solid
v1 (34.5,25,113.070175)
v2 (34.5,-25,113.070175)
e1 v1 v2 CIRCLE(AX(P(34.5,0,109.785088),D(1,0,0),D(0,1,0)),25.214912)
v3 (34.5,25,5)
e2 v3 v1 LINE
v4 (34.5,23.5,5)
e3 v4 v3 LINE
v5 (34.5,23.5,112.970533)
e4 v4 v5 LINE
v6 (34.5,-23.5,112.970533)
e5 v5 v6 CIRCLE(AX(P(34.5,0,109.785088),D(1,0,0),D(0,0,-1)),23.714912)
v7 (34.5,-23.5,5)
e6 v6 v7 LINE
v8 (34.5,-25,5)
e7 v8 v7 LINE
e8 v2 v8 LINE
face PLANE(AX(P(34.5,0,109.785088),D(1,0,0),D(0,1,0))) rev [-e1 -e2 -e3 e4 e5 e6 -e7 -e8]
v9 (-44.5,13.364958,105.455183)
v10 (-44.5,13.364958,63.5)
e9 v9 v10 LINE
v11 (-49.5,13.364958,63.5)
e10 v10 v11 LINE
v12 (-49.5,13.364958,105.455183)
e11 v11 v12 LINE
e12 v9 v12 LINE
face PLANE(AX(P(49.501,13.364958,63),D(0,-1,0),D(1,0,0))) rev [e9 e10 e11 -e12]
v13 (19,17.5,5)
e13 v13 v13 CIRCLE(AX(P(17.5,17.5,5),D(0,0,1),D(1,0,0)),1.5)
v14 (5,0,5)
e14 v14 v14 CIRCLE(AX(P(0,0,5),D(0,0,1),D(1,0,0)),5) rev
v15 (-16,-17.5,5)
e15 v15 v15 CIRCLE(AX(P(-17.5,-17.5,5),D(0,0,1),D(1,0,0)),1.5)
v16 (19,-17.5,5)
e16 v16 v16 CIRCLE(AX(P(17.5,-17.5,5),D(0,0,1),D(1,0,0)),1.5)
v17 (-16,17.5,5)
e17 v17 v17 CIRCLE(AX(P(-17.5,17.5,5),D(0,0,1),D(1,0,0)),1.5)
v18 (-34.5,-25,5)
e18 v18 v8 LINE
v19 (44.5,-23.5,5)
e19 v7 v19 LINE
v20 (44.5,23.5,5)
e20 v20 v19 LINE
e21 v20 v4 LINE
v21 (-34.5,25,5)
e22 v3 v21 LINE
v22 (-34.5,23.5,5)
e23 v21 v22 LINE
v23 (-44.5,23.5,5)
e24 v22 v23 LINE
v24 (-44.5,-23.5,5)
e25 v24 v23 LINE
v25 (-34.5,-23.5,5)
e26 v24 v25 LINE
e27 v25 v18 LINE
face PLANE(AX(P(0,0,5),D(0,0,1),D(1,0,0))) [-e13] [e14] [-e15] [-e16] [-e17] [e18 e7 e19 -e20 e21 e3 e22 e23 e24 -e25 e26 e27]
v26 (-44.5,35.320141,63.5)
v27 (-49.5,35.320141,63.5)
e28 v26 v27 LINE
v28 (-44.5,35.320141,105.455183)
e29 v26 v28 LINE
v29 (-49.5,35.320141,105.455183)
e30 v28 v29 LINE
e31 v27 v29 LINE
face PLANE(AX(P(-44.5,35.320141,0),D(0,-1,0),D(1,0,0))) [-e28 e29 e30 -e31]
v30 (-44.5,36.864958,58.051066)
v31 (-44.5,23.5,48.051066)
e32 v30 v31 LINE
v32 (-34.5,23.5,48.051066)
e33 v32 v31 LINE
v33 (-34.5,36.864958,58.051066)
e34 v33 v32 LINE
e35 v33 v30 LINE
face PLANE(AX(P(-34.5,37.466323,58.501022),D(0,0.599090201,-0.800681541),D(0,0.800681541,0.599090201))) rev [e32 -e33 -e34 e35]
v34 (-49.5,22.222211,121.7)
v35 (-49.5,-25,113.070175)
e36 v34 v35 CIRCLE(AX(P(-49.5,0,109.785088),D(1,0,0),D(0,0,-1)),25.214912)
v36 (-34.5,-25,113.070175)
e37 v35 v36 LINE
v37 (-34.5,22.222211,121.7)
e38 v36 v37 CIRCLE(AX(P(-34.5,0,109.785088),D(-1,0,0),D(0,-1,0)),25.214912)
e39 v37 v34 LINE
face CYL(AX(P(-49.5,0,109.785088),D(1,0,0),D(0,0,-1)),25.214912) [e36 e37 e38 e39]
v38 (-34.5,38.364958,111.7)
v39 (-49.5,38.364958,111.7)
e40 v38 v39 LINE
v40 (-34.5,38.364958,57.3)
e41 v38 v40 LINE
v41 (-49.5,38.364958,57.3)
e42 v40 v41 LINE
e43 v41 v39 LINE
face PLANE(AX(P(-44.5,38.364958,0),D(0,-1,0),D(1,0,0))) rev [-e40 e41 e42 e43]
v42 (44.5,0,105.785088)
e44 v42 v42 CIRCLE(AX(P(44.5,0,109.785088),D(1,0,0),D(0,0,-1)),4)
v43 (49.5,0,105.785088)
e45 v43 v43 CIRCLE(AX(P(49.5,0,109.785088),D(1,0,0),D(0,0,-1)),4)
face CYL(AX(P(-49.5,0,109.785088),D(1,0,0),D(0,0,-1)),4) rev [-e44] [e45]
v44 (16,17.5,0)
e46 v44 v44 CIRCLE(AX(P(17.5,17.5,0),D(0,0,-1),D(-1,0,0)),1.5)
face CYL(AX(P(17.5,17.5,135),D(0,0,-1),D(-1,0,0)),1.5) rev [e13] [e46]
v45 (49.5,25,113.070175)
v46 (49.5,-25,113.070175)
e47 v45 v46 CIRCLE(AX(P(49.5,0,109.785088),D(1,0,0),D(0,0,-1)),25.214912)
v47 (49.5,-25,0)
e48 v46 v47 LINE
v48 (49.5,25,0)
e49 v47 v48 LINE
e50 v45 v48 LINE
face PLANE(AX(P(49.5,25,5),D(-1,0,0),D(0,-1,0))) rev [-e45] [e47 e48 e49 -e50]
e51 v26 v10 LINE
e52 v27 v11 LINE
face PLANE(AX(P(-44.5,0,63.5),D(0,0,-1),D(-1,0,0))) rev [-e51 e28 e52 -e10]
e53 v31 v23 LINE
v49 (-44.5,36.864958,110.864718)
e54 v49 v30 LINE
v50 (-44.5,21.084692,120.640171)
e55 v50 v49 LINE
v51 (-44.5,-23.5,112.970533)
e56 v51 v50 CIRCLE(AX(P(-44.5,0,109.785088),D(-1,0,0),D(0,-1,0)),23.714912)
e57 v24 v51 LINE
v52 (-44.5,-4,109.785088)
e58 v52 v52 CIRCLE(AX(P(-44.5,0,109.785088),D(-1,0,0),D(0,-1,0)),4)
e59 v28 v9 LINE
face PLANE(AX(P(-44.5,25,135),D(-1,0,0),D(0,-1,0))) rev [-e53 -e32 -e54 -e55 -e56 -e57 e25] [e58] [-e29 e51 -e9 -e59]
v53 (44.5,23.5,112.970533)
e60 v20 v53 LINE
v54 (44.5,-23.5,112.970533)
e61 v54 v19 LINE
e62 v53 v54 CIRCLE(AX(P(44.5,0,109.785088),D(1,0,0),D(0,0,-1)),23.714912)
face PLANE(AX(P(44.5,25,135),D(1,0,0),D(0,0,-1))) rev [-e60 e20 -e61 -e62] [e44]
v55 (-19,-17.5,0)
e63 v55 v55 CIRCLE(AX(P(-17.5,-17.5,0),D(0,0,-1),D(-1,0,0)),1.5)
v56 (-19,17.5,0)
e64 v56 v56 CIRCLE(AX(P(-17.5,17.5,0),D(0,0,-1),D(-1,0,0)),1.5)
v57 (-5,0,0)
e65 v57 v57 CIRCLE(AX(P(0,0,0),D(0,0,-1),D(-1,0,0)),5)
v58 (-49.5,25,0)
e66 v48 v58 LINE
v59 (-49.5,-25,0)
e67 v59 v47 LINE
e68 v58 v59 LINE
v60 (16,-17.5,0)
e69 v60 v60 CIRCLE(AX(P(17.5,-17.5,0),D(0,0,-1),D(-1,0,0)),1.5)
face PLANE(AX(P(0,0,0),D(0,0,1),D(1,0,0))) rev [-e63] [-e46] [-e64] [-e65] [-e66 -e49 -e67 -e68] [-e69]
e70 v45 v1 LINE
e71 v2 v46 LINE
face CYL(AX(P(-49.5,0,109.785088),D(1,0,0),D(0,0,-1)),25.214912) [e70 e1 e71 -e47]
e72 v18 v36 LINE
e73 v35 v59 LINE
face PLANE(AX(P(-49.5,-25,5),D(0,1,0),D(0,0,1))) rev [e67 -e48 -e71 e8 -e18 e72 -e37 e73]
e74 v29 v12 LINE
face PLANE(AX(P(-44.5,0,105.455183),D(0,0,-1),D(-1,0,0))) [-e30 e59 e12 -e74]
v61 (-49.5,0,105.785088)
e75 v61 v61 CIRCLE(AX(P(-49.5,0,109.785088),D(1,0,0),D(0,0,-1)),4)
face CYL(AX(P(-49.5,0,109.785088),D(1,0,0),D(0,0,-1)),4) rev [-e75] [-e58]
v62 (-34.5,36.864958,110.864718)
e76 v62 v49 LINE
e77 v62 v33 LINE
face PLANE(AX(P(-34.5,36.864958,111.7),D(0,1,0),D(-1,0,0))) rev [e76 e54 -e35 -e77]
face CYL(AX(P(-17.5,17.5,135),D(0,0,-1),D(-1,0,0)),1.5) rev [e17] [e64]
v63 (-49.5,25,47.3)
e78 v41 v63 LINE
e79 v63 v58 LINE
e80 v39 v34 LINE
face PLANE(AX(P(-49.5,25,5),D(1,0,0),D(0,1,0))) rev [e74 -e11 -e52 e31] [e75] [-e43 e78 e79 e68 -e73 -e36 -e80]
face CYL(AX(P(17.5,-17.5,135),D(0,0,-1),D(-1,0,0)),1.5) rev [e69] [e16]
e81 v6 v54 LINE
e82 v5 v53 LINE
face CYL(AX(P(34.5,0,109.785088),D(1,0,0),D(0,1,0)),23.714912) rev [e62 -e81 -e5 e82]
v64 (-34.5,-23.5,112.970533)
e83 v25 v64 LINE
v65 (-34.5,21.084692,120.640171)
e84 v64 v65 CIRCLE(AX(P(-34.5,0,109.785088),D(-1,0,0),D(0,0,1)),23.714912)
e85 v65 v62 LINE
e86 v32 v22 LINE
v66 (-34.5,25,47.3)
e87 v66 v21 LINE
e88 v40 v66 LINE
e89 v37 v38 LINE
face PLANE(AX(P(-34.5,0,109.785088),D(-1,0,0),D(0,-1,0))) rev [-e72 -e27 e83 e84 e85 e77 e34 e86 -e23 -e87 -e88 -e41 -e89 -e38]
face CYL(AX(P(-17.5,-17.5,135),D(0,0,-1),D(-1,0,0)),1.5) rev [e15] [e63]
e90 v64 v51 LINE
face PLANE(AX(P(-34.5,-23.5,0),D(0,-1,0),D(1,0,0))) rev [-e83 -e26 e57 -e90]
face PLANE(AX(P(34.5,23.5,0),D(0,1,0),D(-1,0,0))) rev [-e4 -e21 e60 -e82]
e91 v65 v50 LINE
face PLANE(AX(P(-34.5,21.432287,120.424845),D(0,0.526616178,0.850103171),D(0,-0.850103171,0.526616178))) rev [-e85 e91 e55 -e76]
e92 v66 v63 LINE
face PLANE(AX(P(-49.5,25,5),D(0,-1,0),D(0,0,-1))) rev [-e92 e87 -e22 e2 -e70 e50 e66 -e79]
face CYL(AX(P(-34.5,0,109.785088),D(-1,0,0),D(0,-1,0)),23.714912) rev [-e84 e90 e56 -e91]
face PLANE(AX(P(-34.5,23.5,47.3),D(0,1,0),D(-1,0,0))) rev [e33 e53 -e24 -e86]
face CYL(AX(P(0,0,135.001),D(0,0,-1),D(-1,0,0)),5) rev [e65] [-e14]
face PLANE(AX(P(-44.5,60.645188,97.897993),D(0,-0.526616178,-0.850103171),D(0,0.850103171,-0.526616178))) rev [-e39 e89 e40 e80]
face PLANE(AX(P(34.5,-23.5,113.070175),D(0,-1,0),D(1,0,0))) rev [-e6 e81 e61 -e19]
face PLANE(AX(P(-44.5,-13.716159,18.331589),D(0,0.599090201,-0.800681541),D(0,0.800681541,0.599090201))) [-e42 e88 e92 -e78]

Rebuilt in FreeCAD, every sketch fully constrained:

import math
import FreeCAD as App
import Part
import Sketcher
from FreeCAD import Vector


def add_polygon(sketch, points):
    """Adds a closed chain of lines whose ends are joined by coincident constraints."""
    first, n = sketch.GeometryCount, len(points)
    for a, b in zip(points, points[1:] + points[:1]):
        sketch.addGeometry(Part.LineSegment(App.Vector(*a, 0), App.Vector(*b, 0)), False)
    for i in range(n):
        sketch.addConstraint(Sketcher.Constraint("Coincident", first + i, 2, first + (i + 1) % n, 1))

doc = App.newDocument("Part")
body = doc.addObject("PartDesign::Body", "Body")

# Sketch on XY plane
sketch1 = body.newObject("Sketcher::SketchObject", "Sketch")
sketch1.AttachmentSupport = (doc.getObject("XY_Plane"), [""])
sketch1.MapMode = "FlatFace"
add_polygon(sketch1, [(-50, 25), (-50, -25), (50, -25), (50, 25)])  # lines 0-3
sketch1.addConstraint([
    Sketcher.Constraint("Vertical", 0),
    Sketcher.Constraint("Horizontal", 1),
    Sketcher.Constraint("Vertical", 2),
    Sketcher.Constraint("Horizontal", 3),
    Sketcher.Constraint("Symmetric", 0, 2, 2, 2, -1, 1),
    Sketcher.Constraint("DistanceX", 1, 1, 1, 2, 99.0),
    Sketcher.Constraint("DistanceY", 0, 2, 0, 1, 50.0),
])
pad1 = body.newObject("PartDesign::Pad", "Pad")
pad1.Profile = sketch1
pad1.Length = 5

# Sketch on XY plane
sketch2 = body.newObject("Sketcher::SketchObject", "Sketch001")
sketch2.AttachmentSupport = (doc.getObject("XY_Plane"), [""])
sketch2.MapMode = "FlatFace"
sketch2.AttachmentOffset = App.Placement(Vector(0, 0, 5), App.Rotation())
add_polygon(sketch2, [(44, 25), (44, -25), (50, -25), (50, 25)])  # lines 0-3
add_polygon(sketch2, [(-50, 25), (-50, -25), (-44, -25), (-44, 25)])  # lines 4-7
sketch2.addConstraint([
    Sketcher.Constraint("Vertical", 0),
    Sketcher.Constraint("Horizontal", 1),
    Sketcher.Constraint("Vertical", 2),
    Sketcher.Constraint("Horizontal", 3),
    Sketcher.Constraint("Vertical", 4),
    Sketcher.Constraint("Horizontal", 5),
    Sketcher.Constraint("Vertical", 6),
    Sketcher.Constraint("Horizontal", 7),
    Sketcher.Constraint("Symmetric", 2, 2, 4, 2, -1, 1),
    Sketcher.Constraint("Symmetric", 0, 2, 6, 2, -1, 1),
    Sketcher.Constraint("Horizontal", 1, 2, 4, 2),
    Sketcher.Constraint("DistanceX", 1, 1, 1, 2, 5.0),
    Sketcher.Constraint("DistanceY", 0, 2, 0, 1, 50.0),
    Sketcher.Constraint("DistanceX", 4, 2, 0, 2, 94.0),
])
pad2 = body.newObject("PartDesign::Pad", "Pad001")
pad2.Profile = sketch2
pad2.Length = 130

# Sketch on YZ plane
sketch3 = body.newObject("Sketcher::SketchObject", "Sketch002")
sketch3.AttachmentSupport = (doc.getObject("YZ_Plane"), [""])
sketch3.MapMode = "FlatFace"
sketch3.AttachmentOffset = App.Placement(Vector(0, 0, 49.5), App.Rotation())
add_polygon(sketch3, [(43.5, 153.5), (-43.5, 153.5), (-43.5, -18.5), (43.5, -18.5)])  # lines 0-3
sketch3.addGeometry(Part.LineSegment(Vector(25, 0, 0), Vector(-25, 0, 0)), False)  # 4
sketch3.addGeometry(Part.LineSegment(Vector(-25, 0, 0), Vector(-25, 106.5, 0)), False)  # 5
sketch3.addGeometry(Part.ArcOfCircle(Part.Circle(Vector(0, 109.8, 0), Vector(0, 0, 1), 25.2), math.radians(-7), math.radians(187)), False)  # 6
sketch3.addGeometry(Part.LineSegment(Vector(25, 106.5, 0), Vector(25, 0, 0)), False)  # 7
sketch3.addGeometry(Part.Circle(Vector(0, 109.8, 0), Vector(0, 0, 1), 4), False)  # 8
sketch3.addConstraint([
    Sketcher.Constraint("Coincident", 4, 2, 5, 1),
    Sketcher.Constraint("Coincident", 5, 2, 6, 2),
    Sketcher.Constraint("Coincident", 6, 1, 7, 1),
    Sketcher.Constraint("Coincident", 7, 2, 4, 1),
    Sketcher.Constraint("Horizontal", 0),
    Sketcher.Constraint("Vertical", 1),
    Sketcher.Constraint("Horizontal", 2),
    Sketcher.Constraint("Vertical", 3),
    Sketcher.Constraint("Horizontal", 4),
    Sketcher.Constraint("Vertical", 5),
    Sketcher.Constraint("Vertical", 7),
    Sketcher.Constraint("Coincident", 8, 3, 6, 3),
    Sketcher.Constraint("Symmetric", 4, 2, 7, 2, -1, 1),
    Sketcher.Constraint("PointOnObject", 6, 3, -2),
    Sketcher.Constraint("Diameter", 8, 8.0),
    Sketcher.Constraint("DistanceX", 4, 2, 4, 1, 50.0),
    Sketcher.Constraint("DistanceY", 5, 1, 5, 2, 106.5),
    Sketcher.Constraint("DistanceX", 0, 2, 0, 1, 86.944),
    Sketcher.Constraint("DistanceY", 1, 2, 1, 1, 171.944),
    Sketcher.Constraint("DistanceX", 0, 2, -1, 1, 43.472),
    Sketcher.Constraint("DistanceY", -1, 1, 0, 2, 153.472),
    Sketcher.Constraint("Radius", 6, 25.214912),
])
pocket1 = body.newObject("PartDesign::Pocket", "Pocket")
pocket1.Profile = sketch3
pocket1.Length = 170.266063

# Sketch on YZ plane
sketch4 = body.newObject("Sketcher::SketchObject", "Sketch003")
sketch4.AttachmentSupport = (doc.getObject("YZ_Plane"), [""])
sketch4.MapMode = "FlatFace"
sketch4.AttachmentOffset = App.Placement(Vector(0, 0, 49.5), App.Rotation())
sketch4.addGeometry([
    Part.LineSegment(Vector(-25, 113, 0), Vector(-25, 0, 0)),  # 0
    Part.LineSegment(Vector(-25, 0, 0), Vector(25, 0, 0)),  # 1
    Part.LineSegment(Vector(25, 0, 0), Vector(25, 113, 0)),  # 2
    Part.ArcOfCircle(Part.Circle(Vector(0, 110, 0), Vector(0, 0, 1), 25), math.radians(7), math.radians(173)),  # 3
    Part.LineSegment(Vector(-24, 2, 0), Vector(-24, 113, 0)),  # 4
    Part.ArcOfCircle(Part.Circle(Vector(0, 110, 0), Vector(0, 0, 1), 24), math.radians(8), math.radians(172)),  # 5
    Part.LineSegment(Vector(24, 113, 0), Vector(24, 2, 0)),  # 6
    Part.LineSegment(Vector(24, 2, 0), Vector(-24, 2, 0)),  # 7
], False)
sketch4.addConstraint([
    Sketcher.Constraint("Coincident", 0, 2, 1, 1),
    Sketcher.Constraint("Coincident", 1, 2, 2, 1),
    Sketcher.Constraint("Coincident", 2, 2, 3, 1),
    Sketcher.Constraint("Coincident", 3, 2, 0, 1),
    Sketcher.Constraint("Coincident", 4, 2, 5, 2),
    Sketcher.Constraint("Coincident", 5, 1, 6, 1),
    Sketcher.Constraint("Coincident", 6, 2, 7, 1),
    Sketcher.Constraint("Coincident", 7, 2, 4, 1),
    Sketcher.Constraint("Vertical", 0),
    Sketcher.Constraint("Horizontal", 1),
    Sketcher.Constraint("Vertical", 2),
    Sketcher.Constraint("Vertical", 4),
    Sketcher.Constraint("Vertical", 6),
    Sketcher.Constraint("Horizontal", 7),
    Sketcher.Constraint("Coincident", 5, 3, 3, 3),
    Sketcher.Constraint("Symmetric", 0, 2, 1, 2, -1, 1),
    Sketcher.Constraint("Symmetric", 4, 2, 5, 1, -2),
    Sketcher.Constraint("DistanceX", 1, 1, 1, 2, 50.0),
    Sketcher.Constraint("DistanceX", 7, 2, 7, 1, 47.0),
    Sketcher.Constraint("DistanceY", -1, 1, 6, 2, 1.5),
    Sketcher.Constraint("Radius", 3, 25.214912),
    Sketcher.Constraint("Radius", 5, 23.714912),
    Sketcher.Constraint("DistanceY", 0, 2, 0, 1, 113.070175),
])
pad3 = body.newObject("PartDesign::Pad", "Pad002")
pad3.Profile = sketch4
pad3.Length = 15
pad3.Reversed = True

# Sketch on YZ plane
sketch5 = body.newObject("Sketcher::SketchObject", "Sketch004")
sketch5.AttachmentSupport = (doc.getObject("YZ_Plane"), [""])
sketch5.MapMode = "FlatFace"
sketch5.AttachmentOffset = App.Placement(Vector(0, 0, -49.5), App.Rotation())
add_polygon(sketch5, [(35, 63), (13, 63), (13, 106), (35, 106)])  # lines 0-3
sketch5.addConstraint([
    Sketcher.Constraint("Horizontal", 0),
    Sketcher.Constraint("Vertical", 1),
    Sketcher.Constraint("Horizontal", 2),
    Sketcher.Constraint("Vertical", 3),
    Sketcher.Constraint("DistanceX", 0, 2, 0, 1, 22.0),
    Sketcher.Constraint("DistanceY", -1, 1, 0, 2, 63.0),
    Sketcher.Constraint("DistanceY", 1, 1, 1, 2, 42.955183),
    Sketcher.Constraint("DistanceX", -1, 1, 0, 2, 13.364958),
])
pocket2 = body.newObject("PartDesign::Pocket", "Pocket001")
pocket2.Profile = sketch5
pocket2.Type = "UpToFirst"
pocket2.Reversed = True

# Sketch on YZ plane
sketch6 = body.newObject("Sketcher::SketchObject", "Sketch005")
sketch6.AttachmentSupport = (doc.getObject("YZ_Plane"), [""])
sketch6.MapMode = "FlatFace"
sketch6.AttachmentOffset = App.Placement(Vector(0, 0, -44.5), App.Rotation())
sketch6.addGeometry([
    Part.LineSegment(Vector(22.2, 121.7, 0), Vector(38.4, 111.7, 0)),  # 0
    Part.LineSegment(Vector(38.4, 111.7, 0), Vector(38.4, 57.3, 0)),  # 1
    Part.LineSegment(Vector(38.4, 57.3, 0), Vector(25, 47.3, 0)),  # 2
    Part.LineSegment(Vector(25, 47.3, 0), Vector(25, 63, 0)),  # 3
    Part.LineSegment(Vector(25, 63, 0), Vector(13.4, 63, 0)),  # 4
    Part.LineSegment(Vector(13.4, 63, 0), Vector(13.4, 63.5, 0)),  # 5
    Part.LineSegment(Vector(13.4, 63.5, 0), Vector(35.3, 63.5, 0)),  # 6
    Part.LineSegment(Vector(35.3, 63.5, 0), Vector(35.3, 105.5, 0)),  # 7
    Part.LineSegment(Vector(35.3, 105.5, 0), Vector(13.4, 105.5, 0)),  # 8
    Part.LineSegment(Vector(13.4, 105.5, 0), Vector(13.4, 106, 0)),  # 9
    Part.LineSegment(Vector(13.4, 106, 0), Vector(25, 106, 0)),  # 10
    Part.LineSegment(Vector(25, 106, 0), Vector(25, 113.1, 0)),  # 11
    Part.ArcOfCircle(Part.Circle(Vector(0, 109.8, 0), Vector(0, 0, 1), 25.2), math.radians(7), math.radians(28)),  # 12
], False)
sketch6.addConstraint([
    Sketcher.Constraint("Coincident", 0, 2, 1, 1),
    Sketcher.Constraint("Coincident", 1, 2, 2, 1),
    Sketcher.Constraint("Coincident", 2, 2, 3, 1),
    Sketcher.Constraint("Coincident", 3, 2, 4, 1),
    Sketcher.Constraint("Coincident", 4, 2, 5, 1),
    Sketcher.Constraint("Coincident", 5, 2, 6, 1),
    Sketcher.Constraint("Coincident", 6, 2, 7, 1),
    Sketcher.Constraint("Coincident", 7, 2, 8, 1),
    Sketcher.Constraint("Coincident", 8, 2, 9, 1),
    Sketcher.Constraint("Coincident", 9, 2, 10, 1),
    Sketcher.Constraint("Coincident", 10, 2, 11, 1),
    Sketcher.Constraint("Coincident", 11, 2, 12, 1),
    Sketcher.Constraint("Coincident", 12, 2, 0, 1),
    Sketcher.Constraint("Vertical", 1),
    Sketcher.Constraint("Vertical", 3),
    Sketcher.Constraint("Horizontal", 4),
    Sketcher.Constraint("Vertical", 5),
    Sketcher.Constraint("Horizontal", 6),
    Sketcher.Constraint("Vertical", 7),
    Sketcher.Constraint("Horizontal", 8),
    Sketcher.Constraint("Vertical", 9),
    Sketcher.Constraint("Horizontal", 10),
    Sketcher.Constraint("Vertical", 11),
    Sketcher.Constraint("PointOnObject", 12, 3, -2),
    Sketcher.Constraint("Vertical", 5, 2, 8, 2),
    Sketcher.Constraint("Vertical", 3, 2, 10, 2),
    Sketcher.Constraint("Equal", 5, 9),
    Sketcher.Constraint("DistanceY", 1, 2, 1, 1, 54.4),
    Sketcher.Constraint("DistanceY", 3, 1, 3, 2, 15.7),
    Sketcher.Constraint("DistanceY", 5, 1, 5, 2, 0.5),
    Sketcher.Constraint("DistanceX", -1, 1, 2, 2, 25.0),
    Sketcher.Constraint("DistanceY", -1, 1, 3, 2, 63.0),
    Sketcher.Constraint("DistanceY", 2, 2, 1, 2, 10.0),
    Sketcher.Constraint("DistanceX", 4, 2, 1, 2, 25.0),
    Sketcher.Constraint("DistanceY", 0, 2, 12, 2, 10.0),
    Sketcher.Constraint("Radius", 12, 25.214912),
    Sketcher.Constraint("DistanceX", 4, 2, 4, 1, 11.635042),
    Sketcher.Constraint("DistanceX", 6, 1, 6, 2, 21.955183),
    Sketcher.Constraint("DistanceY", 7, 1, 7, 2, 41.955183),
    Sketcher.Constraint("DistanceY", 11, 1, 11, 2, 7.114992),
])
pad4 = body.newObject("PartDesign::Pad", "Pad003")
pad4.Profile = sketch6
pad4.Length = 5
pad4.Reversed = True

# Sketch on YZ plane
sketch7 = body.newObject("Sketcher::SketchObject", "Sketch006")
sketch7.AttachmentSupport = (doc.getObject("YZ_Plane"), [""])
sketch7.MapMode = "FlatFace"
sketch7.AttachmentOffset = App.Placement(Vector(0, 0, -34.5), App.Rotation())
sketch7.addGeometry([
    Part.LineSegment(Vector(22.222211, 121.7, 0), Vector(38.364958, 111.7, 0)),  # 0
    Part.LineSegment(Vector(38.364958, 111.7, 0), Vector(38.364958, 57.3, 0)),  # 1
    Part.LineSegment(Vector(38.364958, 57.3, 0), Vector(25, 47.3, 0)),  # 2
    Part.LineSegment(Vector(25, 47.3, 0), Vector(25, 0, 0)),  # 3
    Part.LineSegment(Vector(25, 0, 0), Vector(-25, 0, 0)),  # 4
    Part.LineSegment(Vector(-25, 0, 0), Vector(-25, 113.070175, 0)),  # 5
    Part.ArcOfCircle(Part.Circle(Vector(0, 109.785087, 0), Vector(0, 0, 1), 25.214912), math.radians(28.198934), math.radians(172.514024)),  # 6
    Part.LineSegment(Vector(36.864958, 110.864718, 0), Vector(21.084692, 120.640171, 0)),  # 7
    Part.ArcOfCircle(Part.Circle(Vector(0, 109.785088, 0), Vector(0, 0, 1), 23.714912), math.radians(27.240877), math.radians(172.280559)),  # 8
    Part.LineSegment(Vector(-23.5, 112.970533, 0), Vector(-23.5, 1.5, 0)),  # 9
    Part.LineSegment(Vector(-23.5, 1.5, 0), Vector(23.5, 1.5, 0)),  # 10
    Part.LineSegment(Vector(23.5, 1.5, 0), Vector(23.5, 48.051066, 0)),  # 11
    Part.LineSegment(Vector(23.5, 48.051066, 0), Vector(36.864958, 58.051066, 0)),  # 12
    Part.LineSegment(Vector(36.864958, 58.051066, 0), Vector(36.864958, 110.864718, 0)),  # 13
], False)
sketch7.addConstraint([
    Sketcher.Constraint("Coincident", 0, 2, 1, 1),
    Sketcher.Constraint("Coincident", 1, 2, 2, 1),
    Sketcher.Constraint("Coincident", 2, 2, 3, 1),
    Sketcher.Constraint("Coincident", 3, 2, 4, 1),
    Sketcher.Constraint("Coincident", 4, 2, 5, 1),
    Sketcher.Constraint("Coincident", 5, 2, 6, 2),
    Sketcher.Constraint("Coincident", 6, 1, 0, 1),
    Sketcher.Constraint("Coincident", 7, 2, 8, 1),
    Sketcher.Constraint("Coincident", 8, 2, 9, 1),
    Sketcher.Constraint("Coincident", 9, 2, 10, 1),
    Sketcher.Constraint("Coincident", 10, 2, 11, 1),
    Sketcher.Constraint("Coincident", 11, 2, 12, 1),
    Sketcher.Constraint("Coincident", 12, 2, 13, 1),
    Sketcher.Constraint("Coincident", 13, 2, 7, 1),
    Sketcher.Constraint("Vertical", 1),
    Sketcher.Constraint("Vertical", 3),
    Sketcher.Constraint("Horizontal", 4),
    Sketcher.Constraint("Vertical", 5),
    Sketcher.Constraint("Vertical", 9),
    Sketcher.Constraint("Horizontal", 10),
    Sketcher.Constraint("Vertical", 11),
    Sketcher.Constraint("Vertical", 13),
    Sketcher.Constraint("Coincident", 8, 3, 6, 3),
    Sketcher.Constraint("Symmetric", 3, 2, 4, 2, -1, 1),
    Sketcher.Constraint("PointOnObject", 6, 3, -2),
    Sketcher.Constraint("Parallel", 0, 7),
    Sketcher.Constraint("Parallel", 2, 12),
    Sketcher.Constraint("Equal", 2, 12),
    Sketcher.Constraint("DistanceX", 4, 2, 4, 1, 50.0),
    Sketcher.Constraint("DistanceX", 10, 1, 10, 2, 47.0),
    Sketcher.Constraint("DistanceY", 1, 2, 1, 1, 54.4),
    Sketcher.Constraint("DistanceY", 3, 2, 3, 1, 47.3),
    Sketcher.Constraint("DistanceY", 2, 2, 1, 2, 10.0),
    Sketcher.Constraint("DistanceY", 0, 2, 6, 1, 10.0),
    Sketcher.Constraint("DistanceX", 8, 2, -1, 1, 23.5),
    Sketcher.Constraint("DistanceY", -1, 1, 9, 2, 1.5),
    Sketcher.Constraint("Radius", 6, 25.214912),
    Sketcher.Constraint("Radius", 8, 23.714912),
    Sketcher.Constraint("DistanceY", 13, 1, 13, 2, 52.813652),
    Sketcher.Constraint("DistanceY", 5, 1, 5, 2, 113.070175),
    Sketcher.Constraint("DistanceY", 11, 1, 11, 2, 46.551066),
    Sketcher.Constraint("DistanceY", -1, 1, 7, 2, 120.640171),
])
pad5 = body.newObject("PartDesign::Pad", "Pad004")
pad5.Profile = sketch7
pad5.Length = 15
pad5.Reversed = True

# Sketch on XY plane
sketch8 = body.newObject("Sketcher::SketchObject", "Sketch007")
sketch8.AttachmentSupport = (doc.getObject("XY_Plane"), [""])
sketch8.MapMode = "FlatFace"
sketch8.addGeometry(Part.Circle(Vector(0, 0, 0), Vector(0, 0, 1), 5), False)
sketch8.addConstraint([
    Sketcher.Constraint("Coincident", 0, 3, -1, 1),
    Sketcher.Constraint("Diameter", 0, 10.0),
])
pocket3 = body.newObject("PartDesign::Pocket", "Pocket002")
pocket3.Profile = sketch8
pocket3.Type = "UpToFirst"
pocket3.Reversed = True

# Sketch on XY plane
sketch9 = body.newObject("Sketcher::SketchObject", "Sketch008")
sketch9.AttachmentSupport = (doc.getObject("XY_Plane"), [""])
sketch9.MapMode = "FlatFace"
sketch9.addGeometry([
    Part.Circle(Vector(-17.5, 17.5, 0), Vector(0, 0, 1), 1.5),
    Part.Circle(Vector(-17.5, -17.5, 0), Vector(0, 0, 1), 1.5),
    Part.Circle(Vector(17.5, -17.5, 0), Vector(0, 0, 1), 1.5),
    Part.Circle(Vector(17.5, 17.5, 0), Vector(0, 0, 1), 1.5),
], False)
sketch9.addConstraint([
    Sketcher.Constraint("Equal", 0, 1),
    Sketcher.Constraint("Equal", 1, 2),
    Sketcher.Constraint("Equal", 2, 3),
    Sketcher.Constraint("Symmetric", 0, 3, 2, 3, -1, 1),
    Sketcher.Constraint("Symmetric", 1, 3, 3, 3, -1, 1),
    Sketcher.Constraint("Symmetric", 1, 3, 2, 3, -2),
    Sketcher.Constraint("Diameter", 0, 3.0),
    Sketcher.Constraint("DistanceY", 1, 3, 0, 3, 35.0),
    Sketcher.Constraint("DistanceX", 1, 3, 2, 3, 35.0),
])
pocket4 = body.newObject("PartDesign::Pocket", "Pocket003")
pocket4.Profile = sketch9
pocket4.Type = "ThroughAll"
pocket4.Reversed = True

doc.recompute()
